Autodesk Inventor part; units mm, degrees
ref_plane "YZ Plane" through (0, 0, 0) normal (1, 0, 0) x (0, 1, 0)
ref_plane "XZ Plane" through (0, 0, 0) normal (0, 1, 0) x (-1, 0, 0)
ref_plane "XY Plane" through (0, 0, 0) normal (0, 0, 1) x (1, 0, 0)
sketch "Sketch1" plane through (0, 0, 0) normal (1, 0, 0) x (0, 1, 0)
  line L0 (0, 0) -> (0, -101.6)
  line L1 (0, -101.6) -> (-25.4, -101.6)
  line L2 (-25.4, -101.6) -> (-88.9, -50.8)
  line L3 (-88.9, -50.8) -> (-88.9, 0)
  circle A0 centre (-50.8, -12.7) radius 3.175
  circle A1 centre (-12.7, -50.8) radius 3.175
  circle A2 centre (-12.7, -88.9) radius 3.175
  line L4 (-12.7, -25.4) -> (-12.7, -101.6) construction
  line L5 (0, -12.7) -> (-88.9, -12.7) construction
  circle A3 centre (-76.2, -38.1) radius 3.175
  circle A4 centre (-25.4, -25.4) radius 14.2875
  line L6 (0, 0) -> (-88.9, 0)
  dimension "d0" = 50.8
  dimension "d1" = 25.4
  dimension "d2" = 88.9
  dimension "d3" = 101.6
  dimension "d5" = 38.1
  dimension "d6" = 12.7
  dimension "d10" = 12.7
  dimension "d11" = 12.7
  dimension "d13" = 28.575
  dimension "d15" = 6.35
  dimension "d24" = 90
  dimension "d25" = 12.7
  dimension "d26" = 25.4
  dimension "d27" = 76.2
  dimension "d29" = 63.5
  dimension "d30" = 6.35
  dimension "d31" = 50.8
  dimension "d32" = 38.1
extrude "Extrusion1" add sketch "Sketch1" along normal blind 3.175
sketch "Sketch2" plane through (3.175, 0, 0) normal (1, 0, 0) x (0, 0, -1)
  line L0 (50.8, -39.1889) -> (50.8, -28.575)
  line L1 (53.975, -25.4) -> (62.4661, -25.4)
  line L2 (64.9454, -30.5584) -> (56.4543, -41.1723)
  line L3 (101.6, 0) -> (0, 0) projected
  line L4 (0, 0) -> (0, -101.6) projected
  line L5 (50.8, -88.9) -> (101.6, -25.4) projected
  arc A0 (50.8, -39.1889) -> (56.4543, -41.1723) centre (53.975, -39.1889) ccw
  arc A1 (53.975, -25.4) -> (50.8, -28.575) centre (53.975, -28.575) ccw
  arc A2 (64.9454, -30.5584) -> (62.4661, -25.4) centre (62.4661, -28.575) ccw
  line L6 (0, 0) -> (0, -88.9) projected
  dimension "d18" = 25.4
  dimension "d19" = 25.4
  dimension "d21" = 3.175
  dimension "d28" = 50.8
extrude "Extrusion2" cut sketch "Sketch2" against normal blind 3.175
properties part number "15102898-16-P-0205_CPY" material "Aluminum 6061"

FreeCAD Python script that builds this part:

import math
import FreeCAD as App
import Part
import Sketcher
from FreeCAD import Vector
Q = App.Units.Quantity


def add_polygon(sketch, points):
    """Adds a closed chain of lines whose ends are joined by coincident constraints."""
    first, n = sketch.GeometryCount, len(points)
    for a, b in zip(points, points[1:] + points[:1]):
        sketch.addGeometry(Part.LineSegment(App.Vector(*a, 0), App.Vector(*b, 0)), False)
    for i in range(n):
        sketch.addConstraint(Sketcher.Constraint("Coincident", first + i, 2, first + (i + 1) % n, 1))

doc = App.newDocument("Part")
body = doc.addObject("PartDesign::Body", "Body")

# Sketch on YZ plane
sketch1 = body.newObject("Sketcher::SketchObject", "Sketch")
sketch1.AttachmentSupport = (doc.getObject("YZ_Plane"), [""])
sketch1.MapMode = "FlatFace"
add_polygon(sketch1, [(0, -101.6), (0, 0), (-88.9, 0), (-88.9, -50.8), (-25.4, -101.6)])  # lines 0-4
sketch1.addGeometry(Part.Circle(Vector(-12.7, -88.9, 0), Vector(0, 0, 1), 3.2), False)  # 5
sketch1.addGeometry(Part.Circle(Vector(-12.7, -50.8, 0), Vector(0, 0, 1), 3.2), False)  # 6
sketch1.addGeometry(Part.Circle(Vector(-76.2, -38.1, 0), Vector(0, 0, 1), 3.2), False)  # 7
sketch1.addGeometry(Part.Circle(Vector(-50.8, -12.7, 0), Vector(0, 0, 1), 3.2), False)  # 8
sketch1.addGeometry(Part.Circle(Vector(-25.4, -25.4, 0), Vector(0, 0, 1), 14.3), False)  # 9
sketch1.addConstraint(Sketcher.Constraint("Vertical", 0))
sketch1.addConstraint(Sketcher.Constraint("Horizontal", 1))
sketch1.addConstraint(Sketcher.Constraint("Vertical", 2))
sketch1.addConstraint(Sketcher.Constraint("Horizontal", 4))
sketch1.addConstraint(Sketcher.Constraint("Coincident", 0, 2, -1, 1))
sketch1.addConstraint(Sketcher.Constraint("Equal", 5, 6))
sketch1.addConstraint(Sketcher.Constraint("Equal", 6, 7))
sketch1.addConstraint(Sketcher.Constraint("Equal", 7, 8))
sketch1.addConstraint(Sketcher.Constraint("Horizontal", 6, 3, 2, 2))
sketch1.addConstraint(Sketcher.Constraint("Vertical", 5, 3, 6, 3))
sketch1.addConstraint(Sketcher.Constraint("Vertical", 9, 3, 3, 2))
sketch1.addConstraint(Sketcher.Constraint("Diameter", 5, Q("0.25 in")))
sketch1.addConstraint(Sketcher.Constraint("DistanceX", 4, 1, 4, 2, Q("1 in")))
sketch1.addConstraint(Sketcher.Constraint("DistanceY", 0, 1, 0, 2, Q("4 in")))
sketch1.addConstraint(Sketcher.Constraint("DistanceY", 2, 2, 2, 1, Q("2 in")))
sketch1.addConstraint(Sketcher.Constraint("Diameter", 9, Q("1.125 in")))
sketch1.addConstraint(Sketcher.Constraint("DistanceX", 1, 2, 1, 1, Q("3.5 in")))
sketch1.addConstraint(Sketcher.Constraint("DistanceX", 7, 3, -1, 1, Q("3 in")))
sketch1.addConstraint(Sketcher.Constraint("DistanceX", 8, 3, -1, 1, Q("2 in")))
sketch1.addConstraint(Sketcher.Constraint("DistanceY", 9, 3, -1, 1, Q("1 in")))
sketch1.addConstraint(Sketcher.Constraint("DistanceY", 5, 3, 7, 3, Q("2 in")))
sketch1.addConstraint(Sketcher.Constraint("DistanceY", 7, 3, 8, 3, Q("1 in")))
sketch1.addConstraint(Sketcher.Constraint("DistanceX", 1, 2, 6, 3, Q("3 in")))
sketch1.addConstraint(Sketcher.Constraint("DistanceY", 5, 3, -1, 1, Q("3.5 in")))
pad1 = body.newObject("PartDesign::Pad", "Pad")
pad1.Profile = sketch1
pad1.Length = Q("0.125 in")

# Sketch on YZ plane
sketch2 = body.newObject("Sketcher::SketchObject", "Sketch001")
sketch2.AttachmentSupport = (doc.getObject("YZ_Plane"), [""])
sketch2.MapMode = "FlatFace"
sketch2.AttachmentOffset = App.Placement(Vector(0, 0, 0.125 * 25.4), App.Rotation())
sketch2.addGeometry(Part.LineSegment(Vector(-28.6, -50.8, 0), Vector(-39.2, -50.8, 0)), False)
sketch2.addGeometry(Part.ArcOfCircle(Part.Circle(Vector(-39.2, -54, 0), Vector(0, 0, 1), 3.2), math.radians(90), math.radians(231)), False)
sketch2.addGeometry(Part.LineSegment(Vector(-41.2, -56.5, 0), Vector(-30.6, -64.9, 0)), False)
sketch2.addGeometry(Part.ArcOfCircle(Part.Circle(Vector(-28.6, -62.5, 0), Vector(0, 0, 1), 3.2), math.radians(-129), math.radians(0)), False)
sketch2.addGeometry(Part.LineSegment(Vector(-25.4, -62.5, 0), Vector(-25.4, -54, 0)), False)
sketch2.addGeometry(Part.ArcOfCircle(Part.Circle(Vector(-28.6, -54, 0), Vector(0, 0, 1), 3.2), math.radians(0), math.radians(90)), False)
sketch2.addConstraint(Sketcher.Constraint("Tangent", 0, 2, 1, 1))
sketch2.addConstraint(Sketcher.Constraint("Tangent", 1, 2, 2, 1))
sketch2.addConstraint(Sketcher.Constraint("Tangent", 2, 2, 3, 1))
sketch2.addConstraint(Sketcher.Constraint("Tangent", 3, 2, 4, 1))
sketch2.addConstraint(Sketcher.Constraint("Tangent", 4, 2, 5, 1))
sketch2.addConstraint(Sketcher.Constraint("Tangent", 5, 2, 0, 1))
sketch2.addConstraint(Sketcher.Constraint("Horizontal", 0))
sketch2.addConstraint(Sketcher.Constraint("Vertical", 4))
sketch2.addConstraint(Sketcher.Constraint("Equal", 1, 3))
sketch2.addConstraint(Sketcher.Constraint("Equal", 3, 5))
sketch2.addConstraint(Sketcher.Constraint("DistanceY", 0, 2, -1, 1, Q("2 in")))
sketch2.addConstraint(Sketcher.Constraint("DistanceX", 3, 2, -1, 1, Q("1 in")))
sketch2.addConstraint(Sketcher.Constraint("Radius", 1, Q("0.125 in")))
sketch2.addConstraint(Sketcher.Constraint("Angle", 2, Q("-38.6597 deg")))
sketch2.addConstraint(Sketcher.Constraint("DistanceY", 4, 1, 4, 2, Q("0.3343 in")))
pocket1 = body.newObject("PartDesign::Pocket", "Pocket")
pocket1.Profile = sketch2
pocket1.Length = Q("0.125 in")

doc.recompute()
